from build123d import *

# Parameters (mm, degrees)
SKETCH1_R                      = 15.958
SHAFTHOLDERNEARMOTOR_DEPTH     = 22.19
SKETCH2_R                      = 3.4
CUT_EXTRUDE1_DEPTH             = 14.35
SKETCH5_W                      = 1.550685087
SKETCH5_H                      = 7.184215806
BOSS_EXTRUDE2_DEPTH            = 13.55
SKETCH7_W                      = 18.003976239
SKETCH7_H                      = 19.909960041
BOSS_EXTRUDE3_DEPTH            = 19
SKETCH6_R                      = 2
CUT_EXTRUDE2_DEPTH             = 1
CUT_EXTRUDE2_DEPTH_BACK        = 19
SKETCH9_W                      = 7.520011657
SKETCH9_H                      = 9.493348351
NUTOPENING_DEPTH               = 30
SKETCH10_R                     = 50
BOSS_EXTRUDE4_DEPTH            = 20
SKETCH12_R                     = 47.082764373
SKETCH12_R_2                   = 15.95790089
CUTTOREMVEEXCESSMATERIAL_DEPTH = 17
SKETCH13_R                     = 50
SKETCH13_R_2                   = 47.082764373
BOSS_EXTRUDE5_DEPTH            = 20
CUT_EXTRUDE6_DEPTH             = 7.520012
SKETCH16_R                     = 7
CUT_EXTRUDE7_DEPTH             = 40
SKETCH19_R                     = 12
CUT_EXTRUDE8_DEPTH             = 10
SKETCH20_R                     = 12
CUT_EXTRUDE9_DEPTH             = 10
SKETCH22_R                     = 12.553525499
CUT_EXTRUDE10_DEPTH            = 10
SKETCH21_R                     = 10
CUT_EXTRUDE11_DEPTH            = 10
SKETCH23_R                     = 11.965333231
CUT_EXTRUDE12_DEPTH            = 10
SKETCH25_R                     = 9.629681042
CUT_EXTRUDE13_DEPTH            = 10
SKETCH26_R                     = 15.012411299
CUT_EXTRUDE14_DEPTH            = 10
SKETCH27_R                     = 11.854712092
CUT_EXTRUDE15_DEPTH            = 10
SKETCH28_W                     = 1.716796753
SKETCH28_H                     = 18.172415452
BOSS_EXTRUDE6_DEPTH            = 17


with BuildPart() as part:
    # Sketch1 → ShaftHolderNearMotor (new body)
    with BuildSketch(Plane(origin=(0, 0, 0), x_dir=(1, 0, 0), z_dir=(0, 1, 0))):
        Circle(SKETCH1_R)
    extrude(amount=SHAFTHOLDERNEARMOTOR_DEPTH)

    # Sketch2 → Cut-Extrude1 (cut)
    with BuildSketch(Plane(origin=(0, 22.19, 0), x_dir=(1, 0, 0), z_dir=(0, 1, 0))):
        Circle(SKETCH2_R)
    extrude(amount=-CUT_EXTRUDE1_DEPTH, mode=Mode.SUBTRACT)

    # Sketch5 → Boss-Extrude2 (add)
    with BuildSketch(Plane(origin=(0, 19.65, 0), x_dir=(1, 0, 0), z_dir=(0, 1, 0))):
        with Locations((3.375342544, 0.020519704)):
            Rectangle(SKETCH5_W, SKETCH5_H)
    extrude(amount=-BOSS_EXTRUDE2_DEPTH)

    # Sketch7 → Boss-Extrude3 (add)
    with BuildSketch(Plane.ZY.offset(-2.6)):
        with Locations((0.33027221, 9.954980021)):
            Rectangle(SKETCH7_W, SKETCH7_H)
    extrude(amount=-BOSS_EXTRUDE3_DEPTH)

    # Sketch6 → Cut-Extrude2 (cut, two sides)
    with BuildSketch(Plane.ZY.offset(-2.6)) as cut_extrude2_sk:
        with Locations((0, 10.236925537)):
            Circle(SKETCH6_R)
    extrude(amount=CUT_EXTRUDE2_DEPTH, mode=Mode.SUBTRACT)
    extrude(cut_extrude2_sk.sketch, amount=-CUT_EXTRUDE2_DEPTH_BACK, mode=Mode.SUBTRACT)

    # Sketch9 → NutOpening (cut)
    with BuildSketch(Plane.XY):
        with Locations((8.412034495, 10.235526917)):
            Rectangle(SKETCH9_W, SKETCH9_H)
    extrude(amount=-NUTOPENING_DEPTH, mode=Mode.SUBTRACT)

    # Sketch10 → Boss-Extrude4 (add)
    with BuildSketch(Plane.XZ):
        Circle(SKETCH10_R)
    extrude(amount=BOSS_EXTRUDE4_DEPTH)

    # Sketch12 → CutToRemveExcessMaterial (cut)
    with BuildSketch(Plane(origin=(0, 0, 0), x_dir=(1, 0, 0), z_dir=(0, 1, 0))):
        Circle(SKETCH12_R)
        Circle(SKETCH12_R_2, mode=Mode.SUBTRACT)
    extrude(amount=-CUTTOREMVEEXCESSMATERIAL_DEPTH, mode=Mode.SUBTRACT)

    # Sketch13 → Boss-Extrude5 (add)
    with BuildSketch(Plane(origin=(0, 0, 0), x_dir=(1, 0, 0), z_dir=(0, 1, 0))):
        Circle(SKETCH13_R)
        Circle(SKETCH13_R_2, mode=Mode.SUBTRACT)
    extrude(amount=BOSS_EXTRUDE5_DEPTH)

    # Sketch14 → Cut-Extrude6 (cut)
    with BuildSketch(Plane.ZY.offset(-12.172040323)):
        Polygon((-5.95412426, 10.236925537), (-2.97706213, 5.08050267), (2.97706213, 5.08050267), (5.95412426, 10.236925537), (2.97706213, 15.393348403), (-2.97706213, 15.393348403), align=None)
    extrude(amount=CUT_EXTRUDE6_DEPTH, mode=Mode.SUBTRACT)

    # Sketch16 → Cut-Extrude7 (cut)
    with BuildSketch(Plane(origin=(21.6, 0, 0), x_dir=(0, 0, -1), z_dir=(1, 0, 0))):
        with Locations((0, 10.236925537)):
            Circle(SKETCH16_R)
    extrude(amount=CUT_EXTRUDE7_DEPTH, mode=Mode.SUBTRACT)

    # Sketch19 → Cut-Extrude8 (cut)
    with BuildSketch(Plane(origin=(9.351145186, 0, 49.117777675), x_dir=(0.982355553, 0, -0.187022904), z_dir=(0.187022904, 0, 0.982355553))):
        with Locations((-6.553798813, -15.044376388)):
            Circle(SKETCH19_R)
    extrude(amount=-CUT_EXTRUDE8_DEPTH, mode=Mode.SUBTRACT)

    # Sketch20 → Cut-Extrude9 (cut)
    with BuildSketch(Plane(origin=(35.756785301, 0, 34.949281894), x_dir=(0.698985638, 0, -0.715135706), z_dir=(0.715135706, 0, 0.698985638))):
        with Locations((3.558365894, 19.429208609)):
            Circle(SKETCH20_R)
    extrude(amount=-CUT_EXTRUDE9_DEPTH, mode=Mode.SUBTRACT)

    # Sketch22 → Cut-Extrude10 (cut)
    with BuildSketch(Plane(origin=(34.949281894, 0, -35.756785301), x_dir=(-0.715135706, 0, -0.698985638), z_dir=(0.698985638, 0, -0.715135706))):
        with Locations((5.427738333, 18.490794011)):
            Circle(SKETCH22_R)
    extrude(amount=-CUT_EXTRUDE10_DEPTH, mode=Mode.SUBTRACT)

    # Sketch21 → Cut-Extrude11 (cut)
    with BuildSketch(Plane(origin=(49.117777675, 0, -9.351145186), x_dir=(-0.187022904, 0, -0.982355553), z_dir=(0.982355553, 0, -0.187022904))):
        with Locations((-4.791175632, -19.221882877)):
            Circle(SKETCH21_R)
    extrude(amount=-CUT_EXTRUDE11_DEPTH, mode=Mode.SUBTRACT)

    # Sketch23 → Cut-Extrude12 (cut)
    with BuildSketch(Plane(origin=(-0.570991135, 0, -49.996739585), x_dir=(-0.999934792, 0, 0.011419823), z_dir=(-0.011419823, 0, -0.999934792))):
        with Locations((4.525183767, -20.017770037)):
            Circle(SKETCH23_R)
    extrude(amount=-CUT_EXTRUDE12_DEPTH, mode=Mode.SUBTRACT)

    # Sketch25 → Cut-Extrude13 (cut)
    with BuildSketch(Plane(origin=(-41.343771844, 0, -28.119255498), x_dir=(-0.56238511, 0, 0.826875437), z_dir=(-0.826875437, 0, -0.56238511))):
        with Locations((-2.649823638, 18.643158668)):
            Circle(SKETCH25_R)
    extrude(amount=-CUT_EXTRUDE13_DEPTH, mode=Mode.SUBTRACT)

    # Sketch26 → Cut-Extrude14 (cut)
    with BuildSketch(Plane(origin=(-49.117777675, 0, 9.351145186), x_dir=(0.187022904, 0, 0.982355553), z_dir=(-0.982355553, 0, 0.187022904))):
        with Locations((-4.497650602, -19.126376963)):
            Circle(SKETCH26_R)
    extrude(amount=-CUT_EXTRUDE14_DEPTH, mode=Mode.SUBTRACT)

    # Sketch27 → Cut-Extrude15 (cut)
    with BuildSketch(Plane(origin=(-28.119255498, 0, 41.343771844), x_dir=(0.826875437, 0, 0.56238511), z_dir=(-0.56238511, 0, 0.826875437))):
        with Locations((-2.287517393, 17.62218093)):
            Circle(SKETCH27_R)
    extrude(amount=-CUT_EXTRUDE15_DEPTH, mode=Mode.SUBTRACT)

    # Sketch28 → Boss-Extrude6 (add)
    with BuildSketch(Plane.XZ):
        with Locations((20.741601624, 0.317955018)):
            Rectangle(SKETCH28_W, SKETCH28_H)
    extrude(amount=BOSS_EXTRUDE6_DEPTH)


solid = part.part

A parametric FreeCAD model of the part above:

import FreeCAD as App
import Part
import Sketcher
from FreeCAD import Vector
Q = App.Units.Quantity

doc = App.newDocument("Part")
params = doc.addObject("Spreadsheet::Sheet", "Params")
for row, (alias, value) in enumerate([
    ("pad1_length", "22.19 mm"),
    ("sketch2_diameter", "6.8 mm"),
    ("pocket1_length", "14.35 mm"),
    ("pad2_length", "13.55 mm"),
    ("pad3_length", "19 mm"),
    ("sketch5_diameter", "4 mm"),
    ("pocket2_length", "1 mm"),
    ("pocket2_length2", "19 mm"),
    ("pocket3_length", "30 mm"),
    ("sketch7_diameter", "100 mm"),
    ("pad4_length", "20 mm"),
    ("pocket4_length", "17 mm"),
    ("sketch9_diameter", "100 mm"),
    ("pad5_length", "20 mm"),
    ("pocket5_length", "7.520012 mm"),
    ("sketch11_diameter", "14 mm"),
    ("pocket6_length", "40 mm"),
    ("sketch12_diameter", "24 mm"),
    ("pocket7_length", "10 mm"),
    ("sketch13_diameter", "24 mm"),
    ("pocket8_length", "10 mm"),
    ("pocket9_length", "10 mm"),
    ("sketch15_diameter", "20 mm"),
    ("pocket10_length", "10 mm"),
    ("pocket11_length", "10 mm"),
    ("pocket12_length", "10 mm"),
    ("pocket13_length", "10 mm"),
    ("pocket14_length", "10 mm"),
    ("pad6_length", "17 mm"),
], start=1):
    params.set(f"A{row}", alias)
    params.set(f"B{row}", "=" + value)
    params.setAlias(f"B{row}", alias)

body = doc.addObject("PartDesign::Body", "Body")

sketch1 = body.newObject("Sketcher::SketchObject", "Sketch")
sketch1.AttachmentSupport = (doc.getObject("XZ_Plane"), [""])
sketch1.MapMode = "FlatFace"
sketch1.addGeometry(Part.Circle(Vector(0, 0, 0), Vector(0, 0, 1), 16), False)
sketch1.addConstraint(Sketcher.Constraint("Coincident", 0, 3, -1, 1))
sketch1.addConstraint(Sketcher.Constraint("Diameter", 0, 31.916))
pad1 = body.newObject("PartDesign::Pad", "Pad")
pad1.Profile = sketch1
pad1.setExpression("Length", "Params.pad1_length")
pad1.Reversed = True

sketch2 = body.newObject("Sketcher::SketchObject", "Sketch001")
sketch2.AttachmentSupport = (doc.getObject("XZ_Plane"), [""])
sketch2.MapMode = "FlatFace"
sketch2.AttachmentOffset = App.Placement(Vector(0, 0, -22.19), App.Rotation())
sketch2.addGeometry(Part.Circle(Vector(0, 0, 0), Vector(0, 0, 1), 3.4), False)
sketch2.addConstraint(Sketcher.Constraint("Coincident", 0, 3, -1, 1))
sketch2.addConstraint(Sketcher.Constraint("Diameter", 0, 6.8))
sketch2.setExpression("Constraints[1]", "Params.sketch2_diameter")
pocket1 = body.newObject("PartDesign::Pocket", "Pocket")
pocket1.Profile = sketch2
pocket1.setExpression("Length", "Params.pocket1_length")
pocket1.Reversed = True

sketch3 = body.newObject("Sketcher::SketchObject", "Sketch002")
sketch3.AttachmentSupport = (doc.getObject("XZ_Plane"), [""])
sketch3.MapMode = "FlatFace"
sketch3.AttachmentOffset = App.Placement(Vector(0, 0, -19.65), App.Rotation())
sketch3.addGeometry(Part.LineSegment(Vector(2.6, -3.6, 0), Vector(2.6, 3.6, 0)), False)
sketch3.addGeometry(Part.LineSegment(Vector(2.6, 3.6, 0), Vector(4.2, 3.6, 0)), False)
sketch3.addGeometry(Part.LineSegment(Vector(4.2, 3.6, 0), Vector(4.2, -3.6, 0)), False)
sketch3.addGeometry(Part.LineSegment(Vector(4.2, -3.6, 0), Vector(2.6, -3.6, 0)), False)
sketch3.addConstraint(Sketcher.Constraint("Coincident", 0, 2, 1, 1))
sketch3.addConstraint(Sketcher.Constraint("Coincident", 1, 2, 2, 1))
sketch3.addConstraint(Sketcher.Constraint("Coincident", 2, 2, 3, 1))
sketch3.addConstraint(Sketcher.Constraint("Coincident", 3, 2, 0, 1))
sketch3.addConstraint(Sketcher.Constraint("Vertical", 0))
sketch3.addConstraint(Sketcher.Constraint("Horizontal", 1))
sketch3.addConstraint(Sketcher.Constraint("Vertical", 2))
sketch3.addConstraint(Sketcher.Constraint("Horizontal", 3))
sketch3.addConstraint(Sketcher.Constraint("DistanceX", -1, 1, 0, 2, 2.6))
sketch3.addConstraint(Sketcher.Constraint("DistanceX", 1, 1, 1, 2, 1.550685))
sketch3.addConstraint(Sketcher.Constraint("DistanceY", 0, 1, 0, 2, 7.184216))
sketch3.addConstraint(Sketcher.Constraint("DistanceY", -1, 1, 0, 2, 3.571588))
pad2 = body.newObject("PartDesign::Pad", "Pad001")
pad2.Profile = sketch3
pad2.setExpression("Length", "Params.pad2_length")

sketch4 = body.newObject("Sketcher::SketchObject", "Sketch003")
sketch4.AttachmentSupport = (doc.getObject("YZ_Plane"), [""])
sketch4.MapMode = "FlatFace"
sketch4.AttachmentOffset = App.Placement(Vector(0, 0, 2.6), App.Rotation())
sketch4.addGeometry(Part.LineSegment(Vector(20, -9, 0), Vector(0, -9, 0)), False)
sketch4.addGeometry(Part.LineSegment(Vector(0, -9, 0), Vector(0, 9, 0)), False)
sketch4.addGeometry(Part.LineSegment(Vector(0, 9, 0), Vector(20, 9, 0)), False)
sketch4.addGeometry(Part.LineSegment(Vector(20, 9, 0), Vector(20, -9, 0)), False)
sketch4.addConstraint(Sketcher.Constraint("Coincident", 0, 2, 1, 1))
sketch4.addConstraint(Sketcher.Constraint("Coincident", 1, 2, 2, 1))
sketch4.addConstraint(Sketcher.Constraint("Coincident", 2, 2, 3, 1))
sketch4.addConstraint(Sketcher.Constraint("Coincident", 3, 2, 0, 1))
sketch4.addConstraint(Sketcher.Constraint("Horizontal", 0))
sketch4.addConstraint(Sketcher.Constraint("Vertical", 1))
sketch4.addConstraint(Sketcher.Constraint("Horizontal", 2))
sketch4.addConstraint(Sketcher.Constraint("Vertical", 3))
sketch4.addConstraint(Sketcher.Constraint("PointOnObject", 0, 2, -2))
sketch4.addConstraint(Sketcher.Constraint("DistanceX", 0, 2, 0, 1, 19.90996))
sketch4.addConstraint(Sketcher.Constraint("DistanceY", 1, 1, 1, 2, 18.003976))
sketch4.addConstraint(Sketcher.Constraint("DistanceY", -1, 1, 1, 2, 9.33226))
pad3 = body.newObject("PartDesign::Pad", "Pad002")
pad3.Profile = sketch4
pad3.setExpression("Length", "Params.pad3_length")

sketch5 = body.newObject("Sketcher::SketchObject", "Sketch004")
sketch5.AttachmentSupport = (doc.getObject("YZ_Plane"), [""])
sketch5.MapMode = "FlatFace"
sketch5.AttachmentOffset = App.Placement(Vector(0, 0, 2.6), App.Rotation())
sketch5.addGeometry(Part.Circle(Vector(10.2, 0, 0), Vector(0, 0, 1), 2), False)
sketch5.addConstraint(Sketcher.Constraint("PointOnObject", 0, 3, -1))
sketch5.addConstraint(Sketcher.Constraint("Diameter", 0, 4.0))
sketch5.addConstraint(Sketcher.Constraint("DistanceX", -1, 1, 0, 3, 10.236926))
sketch5.setExpression("Constraints[1]", "Params.sketch5_diameter")
pocket2 = body.newObject("PartDesign::Pocket", "Pocket001")
pocket2.Profile = sketch5
pocket2.Type = "TwoLengths"
pocket2.setExpression("Length", "Params.pocket2_length")
pocket2.setExpression("Length2", "Params.pocket2_length2")

sketch6 = body.newObject("Sketcher::SketchObject", "Sketch005")
sketch6.AttachmentSupport = (doc.getObject("XY_Plane"), [""])
sketch6.MapMode = "FlatFace"
sketch6.addGeometry(Part.LineSegment(Vector(5, 15, 0), Vector(5, 5, 0)), False)
sketch6.addGeometry(Part.LineSegment(Vector(5, 5, 0), Vector(12, 5, 0)), False)
sketch6.addGeometry(Part.LineSegment(Vector(12, 5, 0), Vector(12, 15, 0)), False)
sketch6.addGeometry(Part.LineSegment(Vector(12, 15, 0), Vector(5, 15, 0)), False)
sketch6.addConstraint(Sketcher.Constraint("Coincident", 0, 2, 1, 1))
sketch6.addConstraint(Sketcher.Constraint("Coincident", 1, 2, 2, 1))
sketch6.addConstraint(Sketcher.Constraint("Coincident", 2, 2, 3, 1))
sketch6.addConstraint(Sketcher.Constraint("Coincident", 3, 2, 0, 1))
sketch6.addConstraint(Sketcher.Constraint("Vertical", 0))
sketch6.addConstraint(Sketcher.Constraint("Horizontal", 1))
sketch6.addConstraint(Sketcher.Constraint("Vertical", 2))
sketch6.addConstraint(Sketcher.Constraint("Horizontal", 3))
sketch6.addConstraint(Sketcher.Constraint("DistanceX", 1, 1, 1, 2, 7.520012))
sketch6.addConstraint(Sketcher.Constraint("DistanceY", 0, 2, 0, 1, 9.493348))
sketch6.addConstraint(Sketcher.Constraint("DistanceY", -1, 1, 2, 2, 14.982201))
sketch6.addConstraint(Sketcher.Constraint("DistanceX", -1, 1, 0, 2, 4.652029))
pocket3 = body.newObject("PartDesign::Pocket", "Pocket002")
pocket3.Profile = sketch6
pocket3.setExpression("Length", "Params.pocket3_length")

sketch7 = body.newObject("Sketcher::SketchObject", "Sketch006")
sketch7.AttachmentSupport = (doc.getObject("XZ_Plane"), [""])
sketch7.MapMode = "FlatFace"
sketch7.addGeometry(Part.Circle(Vector(0, 0, 0), Vector(0, 0, 1), 50), False)
sketch7.addConstraint(Sketcher.Constraint("Coincident", 0, 3, -1, 1))
sketch7.addConstraint(Sketcher.Constraint("Diameter", 0, 100.0))
sketch7.setExpression("Constraints[1]", "Params.sketch7_diameter")
pad4 = body.newObject("PartDesign::Pad", "Pad003")
pad4.Profile = sketch7
pad4.setExpression("Length", "Params.pad4_length")

sketch8 = body.newObject("Sketcher::SketchObject", "Sketch007")
sketch8.AttachmentSupport = (doc.getObject("XZ_Plane"), [""])
sketch8.MapMode = "FlatFace"
sketch8.addGeometry(Part.Circle(Vector(0, 0, 0), Vector(0, 0, 1), 47), False)
sketch8.addGeometry(Part.Circle(Vector(0, 0, 0), Vector(0, 0, 1), 16), False)
sketch8.addConstraint(Sketcher.Constraint("Coincident", 0, 3, -1, 1))
sketch8.addConstraint(Sketcher.Constraint("Coincident", 1, 3, -1, 1))
sketch8.addConstraint(Sketcher.Constraint("Diameter", 1, 31.915802))
sketch8.addConstraint(Sketcher.Constraint("Diameter", 0, 94.165529))
pocket4 = body.newObject("PartDesign::Pocket", "Pocket003")
pocket4.Profile = sketch8
pocket4.setExpression("Length", "Params.pocket4_length")
pocket4.Reversed = True

sketch9 = body.newObject("Sketcher::SketchObject", "Sketch008")
sketch9.AttachmentSupport = (doc.getObject("XZ_Plane"), [""])
sketch9.MapMode = "FlatFace"
sketch9.addGeometry(Part.Circle(Vector(0, 0, 0), Vector(0, 0, 1), 50), False)
sketch9.addGeometry(Part.Circle(Vector(0, 0, 0), Vector(0, 0, 1), 47), False)
sketch9.addConstraint(Sketcher.Constraint("Coincident", 0, 3, -1, 1))
sketch9.addConstraint(Sketcher.Constraint("Coincident", 1, 3, -1, 1))
sketch9.addConstraint(Sketcher.Constraint("Diameter", 0, 100.0))
sketch9.addConstraint(Sketcher.Constraint("Diameter", 1, 94.165529))
sketch9.setExpression("Constraints[2]", "Params.sketch9_diameter")
pad5 = body.newObject("PartDesign::Pad", "Pad004")
pad5.Profile = sketch9
pad5.setExpression("Length", "Params.pad5_length")
pad5.Reversed = True

sketch10 = body.newObject("Sketcher::SketchObject", "Sketch009")
sketch10.AttachmentSupport = (doc.getObject("YZ_Plane"), [""])
sketch10.MapMode = "FlatFace"
sketch10.AttachmentOffset = App.Placement(Vector(0, 0, 12.17204), App.Rotation())
sketch10.addGeometry(Part.LineSegment(Vector(10, -6, 0), Vector(5, -3, 0)), False)
sketch10.addGeometry(Part.LineSegment(Vector(5, -3, 0), Vector(5, 3, 0)), False)
sketch10.addGeometry(Part.LineSegment(Vector(5, 3, 0), Vector(10, 6, 0)), False)
sketch10.addGeometry(Part.LineSegment(Vector(10, 6, 0), Vector(15, 3, 0)), False)
sketch10.addGeometry(Part.LineSegment(Vector(15, 3, 0), Vector(15, -3, 0)), False)
sketch10.addGeometry(Part.LineSegment(Vector(15, -3, 0), Vector(10, -6, 0)), False)
sketch10.addConstraint(Sketcher.Constraint("Coincident", 0, 2, 1, 1))
sketch10.addConstraint(Sketcher.Constraint("Coincident", 1, 2, 2, 1))
sketch10.addConstraint(Sketcher.Constraint("Coincident", 2, 2, 3, 1))
sketch10.addConstraint(Sketcher.Constraint("Coincident", 3, 2, 4, 1))
sketch10.addConstraint(Sketcher.Constraint("Coincident", 4, 2, 5, 1))
sketch10.addConstraint(Sketcher.Constraint("Coincident", 5, 2, 0, 1))
sketch10.addConstraint(Sketcher.Constraint("Vertical", 1))
sketch10.addConstraint(Sketcher.Constraint("Vertical", 4))
sketch10.addConstraint(Sketcher.Constraint("Symmetric", 2, 2, 5, 2, -1))
sketch10.addConstraint(Sketcher.Constraint("Parallel", 0, 3))
sketch10.addConstraint(Sketcher.Constraint("Parallel", 2, 5))
sketch10.addConstraint(Sketcher.Constraint("Horizontal", 1, 2, 3, 2))
sketch10.addConstraint(Sketcher.Constraint("Horizontal", 0, 2, 4, 2))
sketch10.addConstraint(Sketcher.Constraint("Angle", 0, Q("150 deg")))
sketch10.addConstraint(Sketcher.Constraint("DistanceY", 1, 1, 1, 2, 5.954124))
sketch10.addConstraint(Sketcher.Constraint("DistanceX", -1, 1, 3, 2, 15.393348))
sketch10.addConstraint(Sketcher.Constraint("DistanceY", 5, 2, 2, 2, 11.908249))
pocket5 = body.newObject("PartDesign::Pocket", "Pocket004")
pocket5.Profile = sketch10
pocket5.setExpression("Length", "Params.pocket5_length")

sketch11 = body.newObject("Sketcher::SketchObject", "Sketch010")
sketch11.AttachmentSupport = (doc.getObject("YZ_Plane"), [""])
sketch11.MapMode = "FlatFace"
sketch11.AttachmentOffset = App.Placement(Vector(0, 0, 21.6), App.Rotation())
sketch11.addGeometry(Part.Circle(Vector(10, 0, 0), Vector(0, 0, 1), 7), False)
sketch11.addConstraint(Sketcher.Constraint("PointOnObject", 0, 3, -1))
sketch11.addConstraint(Sketcher.Constraint("Diameter", 0, 14.0))
sketch11.addConstraint(Sketcher.Constraint("DistanceX", -1, 1, 0, 3, 10.236926))
sketch11.setExpression("Constraints[1]", "Params.sketch11_diameter")
pocket6 = body.newObject("PartDesign::Pocket", "Pocket005")
pocket6.Profile = sketch11
pocket6.setExpression("Length", "Params.pocket6_length")
pocket6.Reversed = True

sketch12 = body.newObject("Sketcher::SketchObject", "Sketch011")
sketch12.Placement = App.Placement(Vector(9.351145, 0, 49.117778), App.Rotation(Vector(0.982355553, 0, -0.187022904), Vector(0, 0.999999999, 0), Vector(0.187022904, 0, 0.982355553), "ZXY"))
sketch12.addGeometry(Part.Circle(Vector(-7, -15, 0), Vector(0, 0, 1), 12), False)
sketch12.addConstraint(Sketcher.Constraint("Diameter", 0, 24.0))
sketch12.addConstraint(Sketcher.Constraint("DistanceX", 0, 3, -1, 1, 6.553799))
sketch12.addConstraint(Sketcher.Constraint("DistanceY", 0, 3, -1, 1, 15.044376))
sketch12.setExpression("Constraints[0]", "Params.sketch12_diameter")
pocket7 = body.newObject("PartDesign::Pocket", "Pocket006")
pocket7.Profile = sketch12
pocket7.setExpression("Length", "Params.pocket7_length")

sketch13 = body.newObject("Sketcher::SketchObject", "Sketch012")
sketch13.Placement = App.Placement(Vector(35.756785, 0, 34.949282), App.Rotation(Vector(0.698985638, 0, -0.715135706), Vector(0, 1, 0), Vector(0.715135706, 0, 0.698985638), "ZXY"))
sketch13.addGeometry(Part.Circle(Vector(4, 19, 0), Vector(0, 0, 1), 12), False)
sketch13.addConstraint(Sketcher.Constraint("Diameter", 0, 24.0))
sketch13.addConstraint(Sketcher.Constraint("DistanceY", -1, 1, 0, 3, 19.429209))
sketch13.addConstraint(Sketcher.Constraint("DistanceX", -1, 1, 0, 3, 3.558366))
sketch13.setExpression("Constraints[0]", "Params.sketch13_diameter")
pocket8 = body.newObject("PartDesign::Pocket", "Pocket007")
pocket8.Profile = sketch13
pocket8.setExpression("Length", "Params.pocket8_length")

sketch14 = body.newObject("Sketcher::SketchObject", "Sketch013")
sketch14.Placement = App.Placement(Vector(34.949282, 0, -35.756785), App.Rotation(Vector(-0.715135706, 0, -0.698985638), Vector(0, 1, 0), Vector(0.698985638, 0, -0.715135706), "ZXY"))
sketch14.addGeometry(Part.Circle(Vector(5, 18, 0), Vector(0, 0, 1), 13), False)
sketch14.addConstraint(Sketcher.Constraint("Diameter", 0, 25.107051))
sketch14.addConstraint(Sketcher.Constraint("DistanceX", -1, 1, 0, 3, 5.427738))
sketch14.addConstraint(Sketcher.Constraint("DistanceY", -1, 1, 0, 3, 18.490794))
pocket9 = body.newObject("PartDesign::Pocket", "Pocket008")
pocket9.Profile = sketch14
pocket9.setExpression("Length", "Params.pocket9_length")

sketch15 = body.newObject("Sketcher::SketchObject", "Sketch014")
sketch15.Placement = App.Placement(Vector(49.117778, 0, -9.351145), App.Rotation(Vector(-0.187022904, 0, -0.982355553), Vector(0, 0.999999999, 0), Vector(0.982355553, 0, -0.187022904), "ZXY"))
sketch15.addGeometry(Part.Circle(Vector(-5, -19, 0), Vector(0, 0, 1), 10), False)
sketch15.addConstraint(Sketcher.Constraint("Diameter", 0, 20.0))
sketch15.addConstraint(Sketcher.Constraint("DistanceX", 0, 3, -1, 1, 4.791176))
sketch15.addConstraint(Sketcher.Constraint("DistanceY", 0, 3, -1, 1, 19.221883))
sketch15.setExpression("Constraints[0]", "Params.sketch15_diameter")
pocket10 = body.newObject("PartDesign::Pocket", "Pocket009")
pocket10.Profile = sketch15
pocket10.setExpression("Length", "Params.pocket10_length")

sketch16 = body.newObject("Sketcher::SketchObject", "Sketch015")
sketch16.Placement = App.Placement(Vector(-0.570991, 0, -49.99674), App.Rotation(Vector(-0.999934792, 0, 0.011419823), Vector(0, 1.000000001, 0), Vector(-0.011419823, 0, -0.999934792), "ZXY"))
sketch16.addGeometry(Part.Circle(Vector(5, -20, 0), Vector(0, 0, 1), 12), False)
sketch16.addConstraint(Sketcher.Constraint("Diameter", 0, 23.930666))
sketch16.addConstraint(Sketcher.Constraint("DistanceY", 0, 3, -1, 1, 20.01777))
sketch16.addConstraint(Sketcher.Constraint("DistanceX", -1, 1, 0, 3, 4.525184))
pocket11 = body.newObject("PartDesign::Pocket", "Pocket010")
pocket11.Profile = sketch16
pocket11.setExpression("Length", "Params.pocket11_length")

sketch17 = body.newObject("Sketcher::SketchObject", "Sketch016")
sketch17.Placement = App.Placement(Vector(-41.343772, 0, -28.119255), App.Rotation(Vector(-0.56238511, 0, 0.826875437), Vector(0, 1, 0), Vector(-0.826875437, 0, -0.56238511), "ZXY"))
sketch17.addGeometry(Part.Circle(Vector(-3, 19, 0), Vector(0, 0, 1), 10), False)
sketch17.addConstraint(Sketcher.Constraint("Diameter", 0, 19.259362))
sketch17.addConstraint(Sketcher.Constraint("DistanceY", -1, 1, 0, 3, 18.643159))
sketch17.addConstraint(Sketcher.Constraint("DistanceX", 0, 3, -1, 1, 2.649824))
pocket12 = body.newObject("PartDesign::Pocket", "Pocket011")
pocket12.Profile = sketch17
pocket12.setExpression("Length", "Params.pocket12_length")

sketch18 = body.newObject("Sketcher::SketchObject", "Sketch017")
sketch18.Placement = App.Placement(Vector(-49.117778, 0, 9.351145), App.Rotation(Vector(0.187022904, 0, 0.982355553), Vector(0, 0.999999999, 0), Vector(-0.982355553, 0, 0.187022904), "ZXY"))
sketch18.addGeometry(Part.Circle(Vector(-4, -19, 0), Vector(0, 0, 1), 15), False)
sketch18.addConstraint(Sketcher.Constraint("Diameter", 0, 30.024823))
sketch18.addConstraint(Sketcher.Constraint("DistanceX", 0, 3, -1, 1, 4.497651))
sketch18.addConstraint(Sketcher.Constraint("DistanceY", 0, 3, -1, 1, 19.126377))
pocket13 = body.newObject("PartDesign::Pocket", "Pocket012")
pocket13.Profile = sketch18
pocket13.setExpression("Length", "Params.pocket13_length")

sketch19 = body.newObject("Sketcher::SketchObject", "Sketch018")
sketch19.Placement = App.Placement(Vector(-28.119255, 0, 41.343772), App.Rotation(Vector(0.826875437, 0, 0.56238511), Vector(0, 1, 0), Vector(-0.56238511, 0, 0.826875437), "ZXY"))
sketch19.addGeometry(Part.Circle(Vector(-2, 18, 0), Vector(0, 0, 1), 12), False)
sketch19.addConstraint(Sketcher.Constraint("Diameter", 0, 23.709424))
sketch19.addConstraint(Sketcher.Constraint("DistanceY", -1, 1, 0, 3, 17.622181))
sketch19.addConstraint(Sketcher.Constraint("DistanceX", 0, 3, -1, 1, 2.287517))
pocket14 = body.newObject("PartDesign::Pocket", "Pocket013")
pocket14.Profile = sketch19
pocket14.setExpression("Length", "Params.pocket14_length")

sketch20 = body.newObject("Sketcher::SketchObject", "Sketch019")
sketch20.AttachmentSupport = (doc.getObject("XZ_Plane"), [""])
sketch20.MapMode = "FlatFace"
sketch20.addGeometry(Part.LineSegment(Vector(19.9, 9.4, 0), Vector(19.9, -8.8, 0)), False)
sketch20.addGeometry(Part.LineSegment(Vector(19.9, -8.8, 0), Vector(21.6, -8.8, 0)), False)
sketch20.addGeometry(Part.LineSegment(Vector(21.6, -8.8, 0), Vector(21.6, 9.4, 0)), False)
sketch20.addGeometry(Part.LineSegment(Vector(21.6, 9.4, 0), Vector(19.9, 9.4, 0)), False)
sketch20.addConstraint(Sketcher.Constraint("Coincident", 0, 2, 1, 1))
sketch20.addConstraint(Sketcher.Constraint("Coincident", 1, 2, 2, 1))
sketch20.addConstraint(Sketcher.Constraint("Coincident", 2, 2, 3, 1))
sketch20.addConstraint(Sketcher.Constraint("Coincident", 3, 2, 0, 1))
sketch20.addConstraint(Sketcher.Constraint("Vertical", 0))
sketch20.addConstraint(Sketcher.Constraint("Horizontal", 1))
sketch20.addConstraint(Sketcher.Constraint("Vertical", 2))
sketch20.addConstraint(Sketcher.Constraint("Horizontal", 3))
sketch20.addConstraint(Sketcher.Constraint("DistanceX", -1, 1, 1, 2, 21.6))
sketch20.addConstraint(Sketcher.Constraint("DistanceX", 1, 1, 1, 2, 1.716797))
sketch20.addConstraint(Sketcher.Constraint("DistanceY", 0, 2, 0, 1, 18.172415))
sketch20.addConstraint(Sketcher.Constraint("DistanceY", 0, 2, -1, 1, 8.768253))
pad6 = body.newObject("PartDesign::Pad", "Pad005")
pad6.Profile = sketch20
pad6.setExpression("Length", "Params.pad6_length")

doc.recompute()
